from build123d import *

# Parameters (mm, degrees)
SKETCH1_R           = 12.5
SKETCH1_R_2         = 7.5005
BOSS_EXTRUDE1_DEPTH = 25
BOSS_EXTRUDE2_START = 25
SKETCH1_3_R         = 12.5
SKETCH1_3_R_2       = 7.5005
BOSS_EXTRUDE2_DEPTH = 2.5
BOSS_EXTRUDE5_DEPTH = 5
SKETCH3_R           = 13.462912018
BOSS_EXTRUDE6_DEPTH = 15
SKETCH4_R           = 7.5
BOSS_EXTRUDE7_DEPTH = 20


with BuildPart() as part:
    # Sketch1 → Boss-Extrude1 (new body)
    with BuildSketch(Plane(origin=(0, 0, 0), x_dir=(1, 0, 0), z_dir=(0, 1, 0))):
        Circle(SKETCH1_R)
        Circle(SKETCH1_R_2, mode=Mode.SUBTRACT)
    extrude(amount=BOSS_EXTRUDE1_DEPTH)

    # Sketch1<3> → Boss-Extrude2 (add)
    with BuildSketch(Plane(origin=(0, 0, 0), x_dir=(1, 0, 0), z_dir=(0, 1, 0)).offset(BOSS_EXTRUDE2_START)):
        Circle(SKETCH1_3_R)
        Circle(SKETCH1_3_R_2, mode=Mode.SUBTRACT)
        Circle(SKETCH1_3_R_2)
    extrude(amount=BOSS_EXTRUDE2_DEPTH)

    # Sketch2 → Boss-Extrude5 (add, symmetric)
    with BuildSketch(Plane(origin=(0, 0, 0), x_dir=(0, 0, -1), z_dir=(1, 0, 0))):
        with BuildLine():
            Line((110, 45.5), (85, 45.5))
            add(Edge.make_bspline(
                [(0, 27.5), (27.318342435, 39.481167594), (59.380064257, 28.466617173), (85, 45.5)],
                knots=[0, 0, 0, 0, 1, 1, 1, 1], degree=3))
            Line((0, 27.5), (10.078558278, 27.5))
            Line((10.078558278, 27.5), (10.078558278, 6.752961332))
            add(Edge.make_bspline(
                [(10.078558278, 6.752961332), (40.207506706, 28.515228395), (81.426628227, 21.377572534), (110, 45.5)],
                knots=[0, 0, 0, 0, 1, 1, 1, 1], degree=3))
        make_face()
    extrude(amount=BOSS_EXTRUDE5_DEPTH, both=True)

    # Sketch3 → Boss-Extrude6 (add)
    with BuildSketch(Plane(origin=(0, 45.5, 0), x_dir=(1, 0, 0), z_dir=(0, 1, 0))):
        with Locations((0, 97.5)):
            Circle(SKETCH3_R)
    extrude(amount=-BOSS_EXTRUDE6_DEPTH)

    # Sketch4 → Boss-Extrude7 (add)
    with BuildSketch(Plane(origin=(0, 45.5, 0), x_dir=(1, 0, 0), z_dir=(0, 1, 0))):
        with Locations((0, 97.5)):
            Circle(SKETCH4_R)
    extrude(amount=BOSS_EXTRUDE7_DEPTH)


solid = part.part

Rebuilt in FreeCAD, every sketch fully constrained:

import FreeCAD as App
import Part
import Sketcher
from FreeCAD import Vector

doc = App.newDocument("Part")
body = doc.addObject("PartDesign::Body", "Body")

sketch1 = body.newObject("Sketcher::SketchObject", "Sketch")
sketch1.AttachmentSupport = (doc.getObject("XZ_Plane"), [""])
sketch1.MapMode = "FlatFace"
sketch1.addGeometry([
    Part.Circle(Vector(0, 0, 0), Vector(0, 0, 1), 12),
    Part.Circle(Vector(0, 0, 0), Vector(0, 0, 1), 8),
], False)
sketch1.addConstraint([
    Sketcher.Constraint("Coincident", 0, 3, -1, 1),
    Sketcher.Constraint("Coincident", 1, 3, -1, 1),
    Sketcher.Constraint("Diameter", 0, 25.0),
    Sketcher.Constraint("Diameter", 1, 15.001),
])
pad1 = body.newObject("PartDesign::Pad", "Pad")
pad1.Profile = sketch1
pad1.Length = 25
pad1.Reversed = True

sketch2 = body.newObject("Sketcher::SketchObject", "Sketch001")
sketch2.AttachmentSupport = (doc.getObject("XZ_Plane"), [""])
sketch2.MapMode = "FlatFace"
sketch2.AttachmentOffset = App.Placement(Vector(0, 0, -25), App.Rotation())
sketch2.addGeometry(Part.Circle(Vector(0, 0, 0), Vector(0, 0, 1), 12), False)
sketch2.addConstraint([
    Sketcher.Constraint("Coincident", 0, 3, -1, 1),
    Sketcher.Constraint("Diameter", 0, 25.0),
])
pad2 = body.newObject("PartDesign::Pad", "Pad001")
pad2.Profile = sketch2
pad2.Length = 2.5
pad2.Reversed = True

sketch3 = body.newObject("Sketcher::SketchObject", "Sketch002")
sketch3.AttachmentSupport = (doc.getObject("YZ_Plane"), [""])
sketch3.MapMode = "FlatFace"
sketch3.addGeometry([
    Part.LineSegment(Vector(45.5, -110, 0), Vector(45.5, -85, 0)),
    Part.BSplineCurve([Vector(27.5, 0, 0), Vector(39.481168, -27.318342, 0), Vector(28.466617, -59.380064, 0), Vector(45.5, -85, 0)], [4, 4], [0, 1], False, 3, [1, 1, 1, 1], False),
    Part.LineSegment(Vector(27.5, 0, 0), Vector(27.5, -10.078558, 0)),
    Part.LineSegment(Vector(27.5, -10.078558, 0), Vector(6.752961, -10.078558, 0)),
    Part.BSplineCurve([Vector(6.752961, -10.078558, 0), Vector(28.515228, -40.207507, 0), Vector(21.377573, -81.426628, 0), Vector(45.5, -110, 0)], [4, 4], [0, 1], False, 3, [1, 1, 1, 1], False),
], False)
sketch3.addConstraint([
    Sketcher.Constraint("Block", 1),
    Sketcher.Constraint("Block", 4),
    Sketcher.Constraint("Coincident", 0, 2, 1, 2),
    Sketcher.Constraint("Coincident", 1, 1, 2, 1),
    Sketcher.Constraint("Coincident", 2, 2, 3, 1),
    Sketcher.Constraint("Coincident", 3, 2, 4, 1),
    Sketcher.Constraint("Coincident", 4, 2, 0, 1),
    Sketcher.Constraint("Vertical", 2),
    Sketcher.Constraint("Horizontal", 3),
])
pad3 = body.newObject("PartDesign::Pad", "Pad002")
pad3.Profile = sketch3
pad3.Length = 10
pad3.Midplane = True

sketch4 = body.newObject("Sketcher::SketchObject", "Sketch003")
sketch4.AttachmentSupport = (doc.getObject("XZ_Plane"), [""])
sketch4.MapMode = "FlatFace"
sketch4.AttachmentOffset = App.Placement(Vector(0, 0, -45.5), App.Rotation())
sketch4.addGeometry(Part.Circle(Vector(0, -98, 0), Vector(0, 0, 1), 13), False)
sketch4.addConstraint([
    Sketcher.Constraint("PointOnObject", 0, 3, -2),
    Sketcher.Constraint("DistanceY", 0, 3, -1, 1, 97.5),
    Sketcher.Constraint("Diameter", 0, 26.925824),
])
pad4 = body.newObject("PartDesign::Pad", "Pad003")
pad4.Profile = sketch4
pad4.Length = 15

sketch5 = body.newObject("Sketcher::SketchObject", "Sketch004")
sketch5.AttachmentSupport = (doc.getObject("XZ_Plane"), [""])
sketch5.MapMode = "FlatFace"
sketch5.AttachmentOffset = App.Placement(Vector(0, 0, -45.5), App.Rotation())
sketch5.addGeometry(Part.Circle(Vector(0, -98, 0), Vector(0, 0, 1), 8), False)
sketch5.addConstraint([
    Sketcher.Constraint("PointOnObject", 0, 3, -2),
    Sketcher.Constraint("Diameter", 0, 15.0),
    Sketcher.Constraint("DistanceY", 0, 3, -1, 1, 97.5),
])
pad5 = body.newObject("PartDesign::Pad", "Pad004")
pad5.Profile = sketch5
pad5.Length = 20
pad5.Reversed = True

doc.recompute()
